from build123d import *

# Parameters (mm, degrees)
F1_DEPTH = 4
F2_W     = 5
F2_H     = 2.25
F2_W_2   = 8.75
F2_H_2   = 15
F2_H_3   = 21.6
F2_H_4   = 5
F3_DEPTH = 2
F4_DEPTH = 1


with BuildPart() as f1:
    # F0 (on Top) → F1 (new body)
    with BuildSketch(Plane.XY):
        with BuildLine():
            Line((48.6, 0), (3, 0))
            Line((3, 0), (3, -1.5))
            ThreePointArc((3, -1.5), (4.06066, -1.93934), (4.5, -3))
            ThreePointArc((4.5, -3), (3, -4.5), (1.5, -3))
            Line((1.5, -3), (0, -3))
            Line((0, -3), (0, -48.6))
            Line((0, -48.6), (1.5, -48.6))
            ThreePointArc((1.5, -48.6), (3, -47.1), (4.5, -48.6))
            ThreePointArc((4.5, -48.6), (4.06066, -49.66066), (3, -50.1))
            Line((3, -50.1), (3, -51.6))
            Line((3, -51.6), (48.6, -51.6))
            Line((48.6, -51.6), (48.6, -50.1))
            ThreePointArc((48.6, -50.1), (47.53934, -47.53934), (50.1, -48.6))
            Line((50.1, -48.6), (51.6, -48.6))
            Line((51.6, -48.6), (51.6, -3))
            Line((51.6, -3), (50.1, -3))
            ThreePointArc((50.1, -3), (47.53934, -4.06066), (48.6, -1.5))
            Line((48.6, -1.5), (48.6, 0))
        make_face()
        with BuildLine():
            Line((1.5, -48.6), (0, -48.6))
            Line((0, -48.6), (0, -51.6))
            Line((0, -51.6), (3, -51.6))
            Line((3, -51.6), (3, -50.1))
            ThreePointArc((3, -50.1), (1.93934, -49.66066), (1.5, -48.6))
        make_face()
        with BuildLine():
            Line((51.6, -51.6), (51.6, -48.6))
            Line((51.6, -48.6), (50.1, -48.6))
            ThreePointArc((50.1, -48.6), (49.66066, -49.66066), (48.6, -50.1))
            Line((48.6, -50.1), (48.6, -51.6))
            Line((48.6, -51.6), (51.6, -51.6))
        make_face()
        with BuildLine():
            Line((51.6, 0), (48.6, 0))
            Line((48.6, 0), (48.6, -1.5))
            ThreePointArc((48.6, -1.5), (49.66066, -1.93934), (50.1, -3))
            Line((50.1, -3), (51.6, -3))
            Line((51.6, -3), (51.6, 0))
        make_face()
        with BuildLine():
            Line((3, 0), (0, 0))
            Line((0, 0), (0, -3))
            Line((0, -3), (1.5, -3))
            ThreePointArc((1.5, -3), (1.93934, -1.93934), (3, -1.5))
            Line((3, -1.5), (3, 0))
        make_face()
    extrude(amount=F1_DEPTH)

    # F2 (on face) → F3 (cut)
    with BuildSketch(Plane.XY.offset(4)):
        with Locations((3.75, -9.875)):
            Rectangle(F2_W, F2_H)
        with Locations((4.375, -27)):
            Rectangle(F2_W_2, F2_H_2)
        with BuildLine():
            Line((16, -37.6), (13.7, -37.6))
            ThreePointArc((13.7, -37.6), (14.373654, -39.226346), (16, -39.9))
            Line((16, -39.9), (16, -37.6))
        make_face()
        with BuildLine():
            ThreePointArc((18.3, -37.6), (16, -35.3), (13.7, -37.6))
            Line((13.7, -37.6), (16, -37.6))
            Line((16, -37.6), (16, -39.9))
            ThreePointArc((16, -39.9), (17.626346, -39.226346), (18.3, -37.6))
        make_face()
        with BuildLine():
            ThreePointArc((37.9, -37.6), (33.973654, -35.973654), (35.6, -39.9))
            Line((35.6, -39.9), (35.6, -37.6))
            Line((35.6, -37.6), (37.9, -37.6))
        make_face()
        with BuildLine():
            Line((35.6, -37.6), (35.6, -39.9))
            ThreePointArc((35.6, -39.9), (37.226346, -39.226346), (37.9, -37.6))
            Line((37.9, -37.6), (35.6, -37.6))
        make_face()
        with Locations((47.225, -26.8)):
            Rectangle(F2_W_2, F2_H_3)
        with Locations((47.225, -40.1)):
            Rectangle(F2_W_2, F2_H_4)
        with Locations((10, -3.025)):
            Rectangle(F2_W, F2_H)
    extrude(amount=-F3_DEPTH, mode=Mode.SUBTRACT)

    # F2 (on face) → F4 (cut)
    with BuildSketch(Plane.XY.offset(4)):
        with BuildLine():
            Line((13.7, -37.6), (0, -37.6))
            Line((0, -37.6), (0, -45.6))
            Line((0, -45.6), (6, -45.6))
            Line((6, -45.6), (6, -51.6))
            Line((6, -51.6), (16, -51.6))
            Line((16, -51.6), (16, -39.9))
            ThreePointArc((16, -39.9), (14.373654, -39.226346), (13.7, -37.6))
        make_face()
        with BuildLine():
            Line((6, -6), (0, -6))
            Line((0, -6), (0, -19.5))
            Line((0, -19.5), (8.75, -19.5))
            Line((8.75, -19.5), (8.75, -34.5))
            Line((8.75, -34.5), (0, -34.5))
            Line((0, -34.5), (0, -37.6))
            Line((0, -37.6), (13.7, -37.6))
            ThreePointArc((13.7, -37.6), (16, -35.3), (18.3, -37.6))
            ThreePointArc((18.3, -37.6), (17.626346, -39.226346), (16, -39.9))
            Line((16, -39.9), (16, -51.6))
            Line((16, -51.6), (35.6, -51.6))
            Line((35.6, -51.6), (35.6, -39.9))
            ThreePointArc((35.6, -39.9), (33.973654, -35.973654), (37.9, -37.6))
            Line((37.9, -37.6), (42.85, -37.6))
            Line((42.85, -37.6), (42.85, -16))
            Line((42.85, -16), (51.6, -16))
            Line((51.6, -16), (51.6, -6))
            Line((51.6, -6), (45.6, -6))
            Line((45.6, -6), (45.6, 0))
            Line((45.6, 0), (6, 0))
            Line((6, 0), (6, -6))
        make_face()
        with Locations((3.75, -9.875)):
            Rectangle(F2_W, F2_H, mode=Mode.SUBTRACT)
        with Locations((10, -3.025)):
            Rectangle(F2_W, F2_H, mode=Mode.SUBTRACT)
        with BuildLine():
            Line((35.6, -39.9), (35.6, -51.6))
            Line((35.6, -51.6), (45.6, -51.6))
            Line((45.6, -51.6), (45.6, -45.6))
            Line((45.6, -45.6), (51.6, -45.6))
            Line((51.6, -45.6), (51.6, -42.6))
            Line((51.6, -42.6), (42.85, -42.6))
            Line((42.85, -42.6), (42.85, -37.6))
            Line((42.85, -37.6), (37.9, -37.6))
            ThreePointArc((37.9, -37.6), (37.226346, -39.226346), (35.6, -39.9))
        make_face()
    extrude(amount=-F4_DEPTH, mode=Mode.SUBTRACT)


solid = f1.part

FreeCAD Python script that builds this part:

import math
import FreeCAD as App
import Part
import Sketcher
from FreeCAD import Vector
Q = App.Units.Quantity


def add_polygon(sketch, points):
    """Adds a closed chain of lines whose ends are joined by coincident constraints."""
    first, n = sketch.GeometryCount, len(points)
    for a, b in zip(points, points[1:] + points[:1]):
        sketch.addGeometry(Part.LineSegment(App.Vector(*a, 0), App.Vector(*b, 0)), False)
    for i in range(n):
        sketch.addConstraint(Sketcher.Constraint("Coincident", first + i, 2, first + (i + 1) % n, 1))

doc = App.newDocument("Part")
body = doc.addObject("PartDesign::Body", "Body")

# Sketch on XY plane
sketch1 = body.newObject("Sketcher::SketchObject", "Sketch")
sketch1.AttachmentSupport = (doc.getObject("XY_Plane"), [""])
sketch1.MapMode = "FlatFace"
add_polygon(sketch1, [(0, -51.6), (51.6, -51.6), (51.6, 0), (0, 0)])  # lines 0-3
sketch1.addGeometry(Part.ArcOfCircle(Part.Circle(Vector(3, -3, 0), Vector(0, 0, 1), 1.5), math.radians(0), math.radians(90)), False)  # 4
sketch1.addGeometry(Part.ArcOfCircle(Part.Circle(Vector(3, -3, 0), Vector(0, 0, 1), 1.5), math.radians(180), math.radians(360)), False)  # 5
sketch1.addGeometry(Part.ArcOfCircle(Part.Circle(Vector(3, -3, 0), Vector(0, 0, 1), 1.5), math.radians(90), math.radians(180)), False)  # 6
sketch1.addGeometry(Part.ArcOfCircle(Part.Circle(Vector(48.6, -3, 0), Vector(0, 0, 1), 1.5), math.radians(90), math.radians(360)), False)  # 7
sketch1.addGeometry(Part.ArcOfCircle(Part.Circle(Vector(48.6, -3, 0), Vector(0, 0, 1), 1.5), math.radians(0), math.radians(90)), False)  # 8
sketch1.addGeometry(Part.ArcOfCircle(Part.Circle(Vector(48.6, -48.6, 0), Vector(0, 0, 1), 1.5), math.radians(0), math.radians(270)), False)  # 9
sketch1.addGeometry(Part.ArcOfCircle(Part.Circle(Vector(48.6, -48.6, 0), Vector(0, 0, 1), 1.5), math.radians(-90), math.radians(0)), False)  # 10
sketch1.addGeometry(Part.ArcOfCircle(Part.Circle(Vector(3, -48.6, 0), Vector(0, 0, 1), 1.5), math.radians(0), math.radians(180)), False)  # 11
sketch1.addGeometry(Part.ArcOfCircle(Part.Circle(Vector(3, -48.6, 0), Vector(0, 0, 1), 1.5), math.radians(-90), math.radians(0)), False)  # 12
sketch1.addGeometry(Part.ArcOfCircle(Part.Circle(Vector(3, -48.6, 0), Vector(0, 0, 1), 1.5), math.radians(-180), math.radians(-90)), False)  # 13
sketch1.addConstraint(Sketcher.Constraint("Tangent", 4, 1, 5, 2))
sketch1.addConstraint(Sketcher.Constraint("Tangent", 5, 1, 6, 2))
sketch1.addConstraint(Sketcher.Constraint("Tangent", 6, 1, 4, 2))
sketch1.addConstraint(Sketcher.Constraint("Tangent", 7, 1, 8, 2))
sketch1.addConstraint(Sketcher.Constraint("Coincident", 8, 1, 7, 2))
sketch1.addConstraint(Sketcher.Constraint("Tangent", 9, 1, 10, 2))
sketch1.addConstraint(Sketcher.Constraint("Coincident", 10, 1, 9, 2))
sketch1.addConstraint(Sketcher.Constraint("Tangent", 11, 1, 12, 2))
sketch1.addConstraint(Sketcher.Constraint("Tangent", 12, 1, 13, 2))
sketch1.addConstraint(Sketcher.Constraint("Tangent", 13, 1, 11, 2))
sketch1.addConstraint(Sketcher.Constraint("Horizontal", 0))
sketch1.addConstraint(Sketcher.Constraint("Vertical", 1))
sketch1.addConstraint(Sketcher.Constraint("Horizontal", 2))
sketch1.addConstraint(Sketcher.Constraint("Vertical", 3))
sketch1.addConstraint(Sketcher.Constraint("Coincident", 2, 2, -1, 1))
sketch1.addConstraint(Sketcher.Constraint("Equal", 6, 7))
sketch1.addConstraint(Sketcher.Constraint("Equal", 8, 9))
sketch1.addConstraint(Sketcher.Constraint("Equal", 10, 11))
sketch1.addConstraint(Sketcher.Constraint("Horizontal", 6, 3, 7, 3))
sketch1.addConstraint(Sketcher.Constraint("Horizontal", 10, 3, 11, 3))
sketch1.addConstraint(Sketcher.Constraint("Horizontal", 8, 3, 4, 1))
sketch1.addConstraint(Sketcher.Constraint("Horizontal", 4, 1, 5, 1))
sketch1.addConstraint(Sketcher.Constraint("Horizontal", 5, 1, 8, 1))
sketch1.addConstraint(Sketcher.Constraint("Horizontal", 13, 3, 9, 1))
sketch1.addConstraint(Sketcher.Constraint("Horizontal", 9, 1, 11, 1))
sketch1.addConstraint(Sketcher.Constraint("Horizontal", 11, 1, 13, 1))
sketch1.addConstraint(Sketcher.Constraint("Vertical", 8, 3, 9, 3))
sketch1.addConstraint(Sketcher.Constraint("Vertical", 6, 3, 11, 3))
sketch1.addConstraint(Sketcher.Constraint("Vertical", 13, 3, 6, 1))
sketch1.addConstraint(Sketcher.Constraint("Vertical", 10, 3, 7, 1))
sketch1.addConstraint(Sketcher.Constraint("Vertical", 7, 1, 10, 1))
sketch1.addConstraint(Sketcher.Constraint("Vertical", 6, 1, 12, 1))
sketch1.addConstraint(Sketcher.Constraint("Equal", 2, 1))
sketch1.addConstraint(Sketcher.Constraint("Radius", 4, Q("1.500001 mm")))
sketch1.addConstraint(Sketcher.Constraint("DistanceX", 0, 1, 0, 2, Q("51.6 mm")))
sketch1.addConstraint(Sketcher.Constraint("DistanceX", -1, 1, 4, 3, Q("2.999999 mm")))
sketch1.addConstraint(Sketcher.Constraint("DistanceY", 4, 3, -1, 1, Q("3.000001 mm")))
sketch1.addConstraint(Sketcher.Constraint("DistanceX", 9, 3, 0, 2, Q("3 mm")))
sketch1.addConstraint(Sketcher.Constraint("DistanceY", 0, 2, 9, 3, Q("3 mm")))
pad1 = body.newObject("PartDesign::Pad", "Pad")
pad1.Profile = sketch1
pad1.Length = 4

# Sketch on XY plane
sketch2 = body.newObject("Sketcher::SketchObject", "Sketch001")
sketch2.AttachmentSupport = (doc.getObject("XY_Plane"), [""])
sketch2.MapMode = "FlatFace"
sketch2.AttachmentOffset = App.Placement(Vector(0, 0, 4), App.Rotation())
add_polygon(sketch2, [(1.2, -8.8), (1.2, -11), (6.2, -11), (6.2, -8.8)])  # lines 0-3
add_polygon(sketch2, [(0, -19.5), (0, -34.5), (8.8, -34.5), (8.8, -19.5)])  # lines 4-7
sketch2.addGeometry(Part.ArcOfCircle(Part.Circle(Vector(16, -37.6, 0), Vector(0, 0, 1), 2.3), math.radians(180), math.radians(270)), False)  # 8
sketch2.addGeometry(Part.ArcOfCircle(Part.Circle(Vector(16, -37.6, 0), Vector(0, 0, 1), 2.3), math.radians(-90), math.radians(0)), False)  # 9
sketch2.addGeometry(Part.ArcOfCircle(Part.Circle(Vector(16, -37.6, 0), Vector(0, 0, 1), 2.3), math.radians(0), math.radians(180)), False)  # 10
sketch2.addGeometry(Part.ArcOfCircle(Part.Circle(Vector(35.6, -37.6, 0), Vector(0, 0, 1), 2.3), math.radians(0), math.radians(270)), False)  # 11
sketch2.addGeometry(Part.ArcOfCircle(Part.Circle(Vector(35.6, -37.6, 0), Vector(0, 0, 1), 2.3), math.radians(-90), math.radians(0)), False)  # 12
add_polygon(sketch2, [(42.9, -16), (42.9, -42.6), (51.6, -42.6), (51.6, -16)])  # lines 13-16
add_polygon(sketch2, [(7.5, -1.9), (7.5, -4.2), (12.5, -4.2), (12.5, -1.9)])  # lines 17-20
sketch2.addConstraint(Sketcher.Constraint("Tangent", 8, 2, 9, 1))
sketch2.addConstraint(Sketcher.Constraint("Tangent", 9, 2, 10, 1))
sketch2.addConstraint(Sketcher.Constraint("Tangent", 10, 2, 8, 1))
sketch2.addConstraint(Sketcher.Constraint("Tangent", 11, 1, 12, 2))
sketch2.addConstraint(Sketcher.Constraint("Coincident", 12, 1, 11, 2))
sketch2.addConstraint(Sketcher.Constraint("Vertical", 0))
sketch2.addConstraint(Sketcher.Constraint("Horizontal", 1))
sketch2.addConstraint(Sketcher.Constraint("Vertical", 2))
sketch2.addConstraint(Sketcher.Constraint("Horizontal", 3))
sketch2.addConstraint(Sketcher.Constraint("Vertical", 4))
sketch2.addConstraint(Sketcher.Constraint("Horizontal", 5))
sketch2.addConstraint(Sketcher.Constraint("Vertical", 6))
sketch2.addConstraint(Sketcher.Constraint("Horizontal", 7))
sketch2.addConstraint(Sketcher.Constraint("Vertical", 13))
sketch2.addConstraint(Sketcher.Constraint("Horizontal", 14))
sketch2.addConstraint(Sketcher.Constraint("Vertical", 15))
sketch2.addConstraint(Sketcher.Constraint("Horizontal", 16))
sketch2.addConstraint(Sketcher.Constraint("Vertical", 17))
sketch2.addConstraint(Sketcher.Constraint("Horizontal", 18))
sketch2.addConstraint(Sketcher.Constraint("Vertical", 19))
sketch2.addConstraint(Sketcher.Constraint("Horizontal", 20))
sketch2.addConstraint(Sketcher.Constraint("Equal", 10, 11))
sketch2.addConstraint(Sketcher.Constraint("PointOnObject", 4, 2, -2))
sketch2.addConstraint(Sketcher.Constraint("Horizontal", 10, 3, 11, 3))
sketch2.addConstraint(Sketcher.Constraint("Horizontal", 12, 3, 9, 2))
sketch2.addConstraint(Sketcher.Constraint("Horizontal", 9, 2, 10, 2))
sketch2.addConstraint(Sketcher.Constraint("Horizontal", 10, 2, 11, 1))
sketch2.addConstraint(Sketcher.Constraint("Vertical", 10, 3, 8, 2))
sketch2.addConstraint(Sketcher.Constraint("Vertical", 11, 3, 12, 1))
sketch2.addConstraint(Sketcher.Constraint("Equal", 7, 14))
sketch2.addConstraint(Sketcher.Constraint("Equal", 3, 18))
sketch2.addConstraint(Sketcher.Constraint("Equal", 2, 17))
sketch2.addConstraint(Sketcher.Constraint("Radius", 8, Q("2.299999 mm")))
sketch2.addConstraint(Sketcher.Constraint("DistanceX", 1, 1, 1, 2, Q("5 mm")))
sketch2.addConstraint(Sketcher.Constraint("DistanceY", 4, 2, 4, 1, Q("15 mm")))
sketch2.addConstraint(Sketcher.Constraint("DistanceY", 13, 2, 13, 1, Q("26.6 mm")))
sketch2.addConstraint(Sketcher.Constraint("DistanceX", -1, 1, 8, 3, Q("15.999999 mm")))
sketch2.addConstraint(Sketcher.Constraint("DistanceY", 0, 2, -1, 1, Q("11 mm")))
sketch2.addConstraint(Sketcher.Constraint("DistanceY", 15, 2, -1, 1, Q("16 mm")))
sketch2.addConstraint(Sketcher.Constraint("DistanceY", 13, 2, 11, 1, Q("5 mm")))
sketch2.addConstraint(Sketcher.Constraint("DistanceX", 12, 1, 14, 2, Q("16 mm")))
sketch2.addConstraint(Sketcher.Constraint("DistanceX", 5, 1, 5, 2, Q("8.75 mm")))
sketch2.addConstraint(Sketcher.Constraint("DistanceY", 0, 2, 0, 1, Q("2.25 mm")))
sketch2.addConstraint(Sketcher.Constraint("DistanceX", -1, 1, 11, 3, Q("35.6 mm")))
sketch2.addConstraint(Sketcher.Constraint("DistanceY", 4, 2, -1, 1, Q("34.5 mm")))
sketch2.addConstraint(Sketcher.Constraint("DistanceX", -1, 1, 17, 2, Q("7.5 mm")))
sketch2.addConstraint(Sketcher.Constraint("DistanceY", 19, 2, -1, 1, Q("1.9 mm")))
sketch2.addConstraint(Sketcher.Constraint("DistanceX", 1, 2, 5, 2, Q("2.5 mm")))
pocket1 = body.newObject("PartDesign::Pocket", "Pocket")
pocket1.Profile = sketch2
pocket1.Length = 2

# Sketch on XY plane
sketch3 = body.newObject("Sketcher::SketchObject", "Sketch002")
sketch3.AttachmentSupport = (doc.getObject("XY_Plane"), [""])
sketch3.MapMode = "FlatFace"
sketch3.AttachmentOffset = App.Placement(Vector(0, 0, 4), App.Rotation())
add_polygon(sketch3, [(0, -45.6), (6, -45.6), (6, -51.6), (45.6, -51.6), (45.6, -45.6), (51.6, -45.6), (51.6, -42.6), (42.9, -42.6), (42.9, -16), (51.6, -16), (51.6, -6), (45.6, -6), (45.6, 0), (6, 0), (6, -6), (0, -6), (0, -19.5), (8.8, -19.5), (8.8, -34.5), (0, -34.5)])  # lines 0-19
sketch3.addGeometry(Part.ArcOfCircle(Part.Circle(Vector(35.6, -37.6, 0), Vector(0, 0, 1), 2.3), math.radians(0), math.radians(270)), False)  # 20
sketch3.addGeometry(Part.ArcOfCircle(Part.Circle(Vector(35.6, -37.6, 0), Vector(0, 0, 1), 2.3), math.radians(-90), math.radians(0)), False)  # 21
sketch3.addGeometry(Part.ArcOfCircle(Part.Circle(Vector(16, -37.6, 0), Vector(0, 0, 1), 2.3), math.radians(180), math.radians(270)), False)  # 22
sketch3.addGeometry(Part.ArcOfCircle(Part.Circle(Vector(16, -37.6, 0), Vector(0, 0, 1), 2.3), math.radians(0), math.radians(180)), False)  # 23
sketch3.addGeometry(Part.ArcOfCircle(Part.Circle(Vector(16, -37.6, 0), Vector(0, 0, 1), 2.3), math.radians(-90), math.radians(0)), False)  # 24
add_polygon(sketch3, [(6.2, -11), (1.2, -11), (1.2, -8.8), (6.2, -8.8)])  # lines 25-28
add_polygon(sketch3, [(12.5, -4.2), (7.5, -4.2), (7.5, -1.9), (12.5, -1.9)])  # lines 29-32
sketch3.addConstraint(Sketcher.Constraint("Tangent", 20, 1, 21, 2))
sketch3.addConstraint(Sketcher.Constraint("Coincident", 21, 1, 20, 2))
sketch3.addConstraint(Sketcher.Constraint("Tangent", 22, 1, 23, 2))
sketch3.addConstraint(Sketcher.Constraint("Tangent", 23, 1, 24, 2))
sketch3.addConstraint(Sketcher.Constraint("Tangent", 24, 1, 22, 2))
sketch3.addConstraint(Sketcher.Constraint("Horizontal", 0))
sketch3.addConstraint(Sketcher.Constraint("Vertical", 1))
sketch3.addConstraint(Sketcher.Constraint("Horizontal", 2))
sketch3.addConstraint(Sketcher.Constraint("Vertical", 3))
sketch3.addConstraint(Sketcher.Constraint("Horizontal", 4))
sketch3.addConstraint(Sketcher.Constraint("Vertical", 5))
sketch3.addConstraint(Sketcher.Constraint("Horizontal", 6))
sketch3.addConstraint(Sketcher.Constraint("Vertical", 7))
sketch3.addConstraint(Sketcher.Constraint("Horizontal", 8))
sketch3.addConstraint(Sketcher.Constraint("Vertical", 9))
sketch3.addConstraint(Sketcher.Constraint("Horizontal", 10))
sketch3.addConstraint(Sketcher.Constraint("Vertical", 11))
sketch3.addConstraint(Sketcher.Constraint("Horizontal", 12))
sketch3.addConstraint(Sketcher.Constraint("Vertical", 13))
sketch3.addConstraint(Sketcher.Constraint("Horizontal", 14))
sketch3.addConstraint(Sketcher.Constraint("Vertical", 15))
sketch3.addConstraint(Sketcher.Constraint("Horizontal", 16))
sketch3.addConstraint(Sketcher.Constraint("Vertical", 17))
sketch3.addConstraint(Sketcher.Constraint("Horizontal", 18))
sketch3.addConstraint(Sketcher.Constraint("Vertical", 19))
sketch3.addConstraint(Sketcher.Constraint("Horizontal", 25))
sketch3.addConstraint(Sketcher.Constraint("Vertical", 26))
sketch3.addConstraint(Sketcher.Constraint("Horizontal", 27))
sketch3.addConstraint(Sketcher.Constraint("Vertical", 28))
sketch3.addConstraint(Sketcher.Constraint("Horizontal", 29))
sketch3.addConstraint(Sketcher.Constraint("Vertical", 30))
sketch3.addConstraint(Sketcher.Constraint("Horizontal", 31))
sketch3.addConstraint(Sketcher.Constraint("Vertical", 32))
sketch3.addConstraint(Sketcher.Constraint("Equal", 21, 22))
sketch3.addConstraint(Sketcher.Constraint("PointOnObject", 11, 2, -1))
sketch3.addConstraint(Sketcher.Constraint("PointOnObject", 14, 2, -2))
sketch3.addConstraint(Sketcher.Constraint("PointOnObject", 18, 2, -2))
sketch3.addConstraint(Sketcher.Constraint("Horizontal", 21, 3, 22, 3))
sketch3.addConstraint(Sketcher.Constraint("Horizontal", 0, 2, 3, 2))
sketch3.addConstraint(Sketcher.Constraint("Horizontal", 10, 2, 13, 2))
sketch3.addConstraint(Sketcher.Constraint("Horizontal", 24, 3, 20, 1))
sketch3.addConstraint(Sketcher.Constraint("Horizontal", 20, 1, 22, 1))
sketch3.addConstraint(Sketcher.Constraint("Horizontal", 22, 1, 23, 1))
sketch3.addConstraint(Sketcher.Constraint("Vertical", 5, 2, 8, 2))
sketch3.addConstraint(Sketcher.Constraint("Vertical", 3, 2, 10, 2))
sketch3.addConstraint(Sketcher.Constraint("Vertical", 1, 2, 12, 2))
sketch3.addConstraint(Sketcher.Constraint("Vertical", 20, 3, 21, 1))
sketch3.addConstraint(Sketcher.Constraint("Vertical", 23, 3, 24, 1))
sketch3.addConstraint(Sketcher.Constraint("Equal", 0, 4))
sketch3.addConstraint(Sketcher.Constraint("Equal", 8, 16))
sketch3.addConstraint(Sketcher.Constraint("Equal", 27, 29))
sketch3.addConstraint(Sketcher.Constraint("Equal", 14, 1))
sketch3.addConstraint(Sketcher.Constraint("Equal", 3, 11))
sketch3.addConstraint(Sketcher.Constraint("Equal", 28, 30))
sketch3.addConstraint(Sketcher.Constraint("Radius", 20, Q("2.3 mm")))
sketch3.addConstraint(Sketcher.Constraint("DistanceX", 0, 1, 0, 2, Q("6 mm")))
sketch3.addConstraint(Sketcher.Constraint("DistanceX", 25, 2, 25, 1, Q("5 mm")))
sketch3.addConstraint(Sketcher.Constraint("DistanceY", 5, 1, 5, 2, Q("3 mm")))
sketch3.addConstraint(Sketcher.Constraint("DistanceY", 9, 1, 9, 2, Q("10 mm")))
sketch3.addConstraint(Sketcher.Constraint("DistanceY", 17, 2, 17, 1, Q("15 mm")))
sketch3.addConstraint(Sketcher.Constraint("DistanceX", 2, 1, 2, 2, Q("39.6 mm")))
sketch3.addConstraint(Sketcher.Constraint("DistanceY", 7, 1, 7, 2, Q("26.6 mm")))
sketch3.addConstraint(Sketcher.Constraint("DistanceY", 15, 2, 15, 1, Q("13.5 mm")))
sketch3.addConstraint(Sketcher.Constraint("DistanceX", -1, 1, 22, 3, Q("15.999999 mm")))
sketch3.addConstraint(Sketcher.Constraint("DistanceY", 25, 2, -1, 1, Q("11 mm")))
sketch3.addConstraint(Sketcher.Constraint("DistanceY", 0, 2, 22, 3, Q("7.999999 mm")))
sketch3.addConstraint(Sketcher.Constraint("DistanceX", 21, 3, 2, 2, Q("9.999999 mm")))
sketch3.addConstraint(Sketcher.Constraint("DistanceX", 6, 2, 6, 1, Q("8.75 mm")))
sketch3.addConstraint(Sketcher.Constraint("DistanceY", 26, 1, 26, 2, Q("2.25 mm")))
sketch3.addConstraint(Sketcher.Constraint("DistanceX", -1, 1, 29, 2, Q("7.5 mm")))
sketch3.addConstraint(Sketcher.Constraint("DistanceY", 30, 2, -1, 1, Q("1.9 mm")))
sketch3.addConstraint(Sketcher.Constraint("DistanceX", 25, 2, 16, 2, Q("7.5 mm")))
pocket2 = body.newObject("PartDesign::Pocket", "Pocket001")
pocket2.Profile = sketch3
pocket2.Length = 1

doc.recompute()
